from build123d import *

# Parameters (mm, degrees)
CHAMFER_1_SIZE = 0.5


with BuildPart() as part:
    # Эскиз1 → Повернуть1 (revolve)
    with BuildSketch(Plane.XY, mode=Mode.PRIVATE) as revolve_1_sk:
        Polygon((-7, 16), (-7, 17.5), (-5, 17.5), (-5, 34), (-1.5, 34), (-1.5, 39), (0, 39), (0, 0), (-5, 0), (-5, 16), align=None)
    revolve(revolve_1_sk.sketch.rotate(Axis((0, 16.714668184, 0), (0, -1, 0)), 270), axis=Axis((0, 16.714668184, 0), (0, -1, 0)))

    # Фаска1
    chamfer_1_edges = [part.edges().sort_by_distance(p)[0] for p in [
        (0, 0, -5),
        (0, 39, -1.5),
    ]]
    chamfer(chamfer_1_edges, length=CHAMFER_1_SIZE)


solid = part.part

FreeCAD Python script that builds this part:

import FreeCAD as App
import Part
import Sketcher

V = App.Vector
Q = App.Units.Quantity


def edges_at(feature, points):
    """Names of the edges that pass closest to the given points."""
    edges = feature.Shape.Edges
    near = lambda p: min(range(len(edges)), key=lambda i: edges[i].distToShape(Part.Vertex(*p))[0])
    return sorted({f"Edge{near(p) + 1}" for p in points})

doc = App.newDocument("Part")
body = doc.addObject("PartDesign::Body", "Body")

sketch1 = body.newObject("Sketcher::SketchObject", "Sketch")
sketch1.AttachmentSupport = (doc.getObject("XY_Plane"), [""])
sketch1.MapMode = "FlatFace"
sketch1.addGeometry([
    Part.LineSegment(V(-7, 17.5, 0), V(-7, 16, 0)),
    Part.LineSegment(V(-7, 16, 0), V(-5, 16, 0)),
    Part.LineSegment(V(-5, 16, 0), V(-5, 0, 0)),
    Part.LineSegment(V(-5, 0, 0), V(0, 0, 0)),
    Part.LineSegment(V(0, 0, 0), V(0, 39, 0)),
    Part.LineSegment(V(0, 39, 0), V(-1.5, 39, 0)),
    Part.LineSegment(V(-1.5, 39, 0), V(-1.5, 34, 0)),
    Part.LineSegment(V(-1.5, 34, 0), V(-5, 34, 0)),
    Part.LineSegment(V(-5, 34, 0), V(-5, 17.5, 0)),
    Part.LineSegment(V(-5, 17.5, 0), V(-7, 17.5, 0)),
], False)
sketch1.addConstraint([
    Sketcher.Constraint("Coincident", 0, 2, 1, 1),
    Sketcher.Constraint("Coincident", 1, 2, 2, 1),
    Sketcher.Constraint("Coincident", 2, 2, 3, 1),
    Sketcher.Constraint("Coincident", 3, 2, 4, 1),
    Sketcher.Constraint("Coincident", 4, 2, 5, 1),
    Sketcher.Constraint("Coincident", 5, 2, 6, 1),
    Sketcher.Constraint("Coincident", 6, 2, 7, 1),
    Sketcher.Constraint("Coincident", 7, 2, 8, 1),
    Sketcher.Constraint("Coincident", 8, 2, 9, 1),
    Sketcher.Constraint("Coincident", 9, 2, 0, 1),
    Sketcher.Constraint("Vertical", 0),
    Sketcher.Constraint("Horizontal", 1),
    Sketcher.Constraint("Vertical", 2),
    Sketcher.Constraint("Horizontal", 3),
    Sketcher.Constraint("Vertical", 4),
    Sketcher.Constraint("Horizontal", 5),
    Sketcher.Constraint("Vertical", 6),
    Sketcher.Constraint("Horizontal", 7),
    Sketcher.Constraint("Vertical", 8),
    Sketcher.Constraint("Horizontal", 9),
    Sketcher.Constraint("Coincident", 3, 2, -1, 1),
    Sketcher.Constraint("Vertical", 2, 2, 7, 2),
    Sketcher.Constraint("Equal", 5, 0),
    Sketcher.Constraint("Equal", 3, 6),
    Sketcher.Constraint("DistanceX", 1, 1, 1, 2, Q("2 mm")),
    Sketcher.Constraint("DistanceX", 3, 1, 3, 2, Q("5 mm")),
    Sketcher.Constraint("DistanceY", 2, 2, 2, 1, Q("16 mm")),
    Sketcher.Constraint("DistanceY", 4, 1, 4, 2, Q("39 mm")),
    Sketcher.Constraint("DistanceX", 5, 2, 5, 1, Q("1.5 mm")),
])
revolution = body.newObject("PartDesign::Revolution", "Revolution")
revolution.Profile = sketch1
revolution.ReferenceAxis = (sketch1, ["V_Axis"])
revolution.Angle = 360
doc.recompute()

chamfer = body.newObject("PartDesign::Chamfer", "Chamfer")
chamfer.Base = (revolution, edges_at(revolution, [(0, 0, -5), (0, 39, -1.5)]))
chamfer.Size = 0.5

doc.recompute()
